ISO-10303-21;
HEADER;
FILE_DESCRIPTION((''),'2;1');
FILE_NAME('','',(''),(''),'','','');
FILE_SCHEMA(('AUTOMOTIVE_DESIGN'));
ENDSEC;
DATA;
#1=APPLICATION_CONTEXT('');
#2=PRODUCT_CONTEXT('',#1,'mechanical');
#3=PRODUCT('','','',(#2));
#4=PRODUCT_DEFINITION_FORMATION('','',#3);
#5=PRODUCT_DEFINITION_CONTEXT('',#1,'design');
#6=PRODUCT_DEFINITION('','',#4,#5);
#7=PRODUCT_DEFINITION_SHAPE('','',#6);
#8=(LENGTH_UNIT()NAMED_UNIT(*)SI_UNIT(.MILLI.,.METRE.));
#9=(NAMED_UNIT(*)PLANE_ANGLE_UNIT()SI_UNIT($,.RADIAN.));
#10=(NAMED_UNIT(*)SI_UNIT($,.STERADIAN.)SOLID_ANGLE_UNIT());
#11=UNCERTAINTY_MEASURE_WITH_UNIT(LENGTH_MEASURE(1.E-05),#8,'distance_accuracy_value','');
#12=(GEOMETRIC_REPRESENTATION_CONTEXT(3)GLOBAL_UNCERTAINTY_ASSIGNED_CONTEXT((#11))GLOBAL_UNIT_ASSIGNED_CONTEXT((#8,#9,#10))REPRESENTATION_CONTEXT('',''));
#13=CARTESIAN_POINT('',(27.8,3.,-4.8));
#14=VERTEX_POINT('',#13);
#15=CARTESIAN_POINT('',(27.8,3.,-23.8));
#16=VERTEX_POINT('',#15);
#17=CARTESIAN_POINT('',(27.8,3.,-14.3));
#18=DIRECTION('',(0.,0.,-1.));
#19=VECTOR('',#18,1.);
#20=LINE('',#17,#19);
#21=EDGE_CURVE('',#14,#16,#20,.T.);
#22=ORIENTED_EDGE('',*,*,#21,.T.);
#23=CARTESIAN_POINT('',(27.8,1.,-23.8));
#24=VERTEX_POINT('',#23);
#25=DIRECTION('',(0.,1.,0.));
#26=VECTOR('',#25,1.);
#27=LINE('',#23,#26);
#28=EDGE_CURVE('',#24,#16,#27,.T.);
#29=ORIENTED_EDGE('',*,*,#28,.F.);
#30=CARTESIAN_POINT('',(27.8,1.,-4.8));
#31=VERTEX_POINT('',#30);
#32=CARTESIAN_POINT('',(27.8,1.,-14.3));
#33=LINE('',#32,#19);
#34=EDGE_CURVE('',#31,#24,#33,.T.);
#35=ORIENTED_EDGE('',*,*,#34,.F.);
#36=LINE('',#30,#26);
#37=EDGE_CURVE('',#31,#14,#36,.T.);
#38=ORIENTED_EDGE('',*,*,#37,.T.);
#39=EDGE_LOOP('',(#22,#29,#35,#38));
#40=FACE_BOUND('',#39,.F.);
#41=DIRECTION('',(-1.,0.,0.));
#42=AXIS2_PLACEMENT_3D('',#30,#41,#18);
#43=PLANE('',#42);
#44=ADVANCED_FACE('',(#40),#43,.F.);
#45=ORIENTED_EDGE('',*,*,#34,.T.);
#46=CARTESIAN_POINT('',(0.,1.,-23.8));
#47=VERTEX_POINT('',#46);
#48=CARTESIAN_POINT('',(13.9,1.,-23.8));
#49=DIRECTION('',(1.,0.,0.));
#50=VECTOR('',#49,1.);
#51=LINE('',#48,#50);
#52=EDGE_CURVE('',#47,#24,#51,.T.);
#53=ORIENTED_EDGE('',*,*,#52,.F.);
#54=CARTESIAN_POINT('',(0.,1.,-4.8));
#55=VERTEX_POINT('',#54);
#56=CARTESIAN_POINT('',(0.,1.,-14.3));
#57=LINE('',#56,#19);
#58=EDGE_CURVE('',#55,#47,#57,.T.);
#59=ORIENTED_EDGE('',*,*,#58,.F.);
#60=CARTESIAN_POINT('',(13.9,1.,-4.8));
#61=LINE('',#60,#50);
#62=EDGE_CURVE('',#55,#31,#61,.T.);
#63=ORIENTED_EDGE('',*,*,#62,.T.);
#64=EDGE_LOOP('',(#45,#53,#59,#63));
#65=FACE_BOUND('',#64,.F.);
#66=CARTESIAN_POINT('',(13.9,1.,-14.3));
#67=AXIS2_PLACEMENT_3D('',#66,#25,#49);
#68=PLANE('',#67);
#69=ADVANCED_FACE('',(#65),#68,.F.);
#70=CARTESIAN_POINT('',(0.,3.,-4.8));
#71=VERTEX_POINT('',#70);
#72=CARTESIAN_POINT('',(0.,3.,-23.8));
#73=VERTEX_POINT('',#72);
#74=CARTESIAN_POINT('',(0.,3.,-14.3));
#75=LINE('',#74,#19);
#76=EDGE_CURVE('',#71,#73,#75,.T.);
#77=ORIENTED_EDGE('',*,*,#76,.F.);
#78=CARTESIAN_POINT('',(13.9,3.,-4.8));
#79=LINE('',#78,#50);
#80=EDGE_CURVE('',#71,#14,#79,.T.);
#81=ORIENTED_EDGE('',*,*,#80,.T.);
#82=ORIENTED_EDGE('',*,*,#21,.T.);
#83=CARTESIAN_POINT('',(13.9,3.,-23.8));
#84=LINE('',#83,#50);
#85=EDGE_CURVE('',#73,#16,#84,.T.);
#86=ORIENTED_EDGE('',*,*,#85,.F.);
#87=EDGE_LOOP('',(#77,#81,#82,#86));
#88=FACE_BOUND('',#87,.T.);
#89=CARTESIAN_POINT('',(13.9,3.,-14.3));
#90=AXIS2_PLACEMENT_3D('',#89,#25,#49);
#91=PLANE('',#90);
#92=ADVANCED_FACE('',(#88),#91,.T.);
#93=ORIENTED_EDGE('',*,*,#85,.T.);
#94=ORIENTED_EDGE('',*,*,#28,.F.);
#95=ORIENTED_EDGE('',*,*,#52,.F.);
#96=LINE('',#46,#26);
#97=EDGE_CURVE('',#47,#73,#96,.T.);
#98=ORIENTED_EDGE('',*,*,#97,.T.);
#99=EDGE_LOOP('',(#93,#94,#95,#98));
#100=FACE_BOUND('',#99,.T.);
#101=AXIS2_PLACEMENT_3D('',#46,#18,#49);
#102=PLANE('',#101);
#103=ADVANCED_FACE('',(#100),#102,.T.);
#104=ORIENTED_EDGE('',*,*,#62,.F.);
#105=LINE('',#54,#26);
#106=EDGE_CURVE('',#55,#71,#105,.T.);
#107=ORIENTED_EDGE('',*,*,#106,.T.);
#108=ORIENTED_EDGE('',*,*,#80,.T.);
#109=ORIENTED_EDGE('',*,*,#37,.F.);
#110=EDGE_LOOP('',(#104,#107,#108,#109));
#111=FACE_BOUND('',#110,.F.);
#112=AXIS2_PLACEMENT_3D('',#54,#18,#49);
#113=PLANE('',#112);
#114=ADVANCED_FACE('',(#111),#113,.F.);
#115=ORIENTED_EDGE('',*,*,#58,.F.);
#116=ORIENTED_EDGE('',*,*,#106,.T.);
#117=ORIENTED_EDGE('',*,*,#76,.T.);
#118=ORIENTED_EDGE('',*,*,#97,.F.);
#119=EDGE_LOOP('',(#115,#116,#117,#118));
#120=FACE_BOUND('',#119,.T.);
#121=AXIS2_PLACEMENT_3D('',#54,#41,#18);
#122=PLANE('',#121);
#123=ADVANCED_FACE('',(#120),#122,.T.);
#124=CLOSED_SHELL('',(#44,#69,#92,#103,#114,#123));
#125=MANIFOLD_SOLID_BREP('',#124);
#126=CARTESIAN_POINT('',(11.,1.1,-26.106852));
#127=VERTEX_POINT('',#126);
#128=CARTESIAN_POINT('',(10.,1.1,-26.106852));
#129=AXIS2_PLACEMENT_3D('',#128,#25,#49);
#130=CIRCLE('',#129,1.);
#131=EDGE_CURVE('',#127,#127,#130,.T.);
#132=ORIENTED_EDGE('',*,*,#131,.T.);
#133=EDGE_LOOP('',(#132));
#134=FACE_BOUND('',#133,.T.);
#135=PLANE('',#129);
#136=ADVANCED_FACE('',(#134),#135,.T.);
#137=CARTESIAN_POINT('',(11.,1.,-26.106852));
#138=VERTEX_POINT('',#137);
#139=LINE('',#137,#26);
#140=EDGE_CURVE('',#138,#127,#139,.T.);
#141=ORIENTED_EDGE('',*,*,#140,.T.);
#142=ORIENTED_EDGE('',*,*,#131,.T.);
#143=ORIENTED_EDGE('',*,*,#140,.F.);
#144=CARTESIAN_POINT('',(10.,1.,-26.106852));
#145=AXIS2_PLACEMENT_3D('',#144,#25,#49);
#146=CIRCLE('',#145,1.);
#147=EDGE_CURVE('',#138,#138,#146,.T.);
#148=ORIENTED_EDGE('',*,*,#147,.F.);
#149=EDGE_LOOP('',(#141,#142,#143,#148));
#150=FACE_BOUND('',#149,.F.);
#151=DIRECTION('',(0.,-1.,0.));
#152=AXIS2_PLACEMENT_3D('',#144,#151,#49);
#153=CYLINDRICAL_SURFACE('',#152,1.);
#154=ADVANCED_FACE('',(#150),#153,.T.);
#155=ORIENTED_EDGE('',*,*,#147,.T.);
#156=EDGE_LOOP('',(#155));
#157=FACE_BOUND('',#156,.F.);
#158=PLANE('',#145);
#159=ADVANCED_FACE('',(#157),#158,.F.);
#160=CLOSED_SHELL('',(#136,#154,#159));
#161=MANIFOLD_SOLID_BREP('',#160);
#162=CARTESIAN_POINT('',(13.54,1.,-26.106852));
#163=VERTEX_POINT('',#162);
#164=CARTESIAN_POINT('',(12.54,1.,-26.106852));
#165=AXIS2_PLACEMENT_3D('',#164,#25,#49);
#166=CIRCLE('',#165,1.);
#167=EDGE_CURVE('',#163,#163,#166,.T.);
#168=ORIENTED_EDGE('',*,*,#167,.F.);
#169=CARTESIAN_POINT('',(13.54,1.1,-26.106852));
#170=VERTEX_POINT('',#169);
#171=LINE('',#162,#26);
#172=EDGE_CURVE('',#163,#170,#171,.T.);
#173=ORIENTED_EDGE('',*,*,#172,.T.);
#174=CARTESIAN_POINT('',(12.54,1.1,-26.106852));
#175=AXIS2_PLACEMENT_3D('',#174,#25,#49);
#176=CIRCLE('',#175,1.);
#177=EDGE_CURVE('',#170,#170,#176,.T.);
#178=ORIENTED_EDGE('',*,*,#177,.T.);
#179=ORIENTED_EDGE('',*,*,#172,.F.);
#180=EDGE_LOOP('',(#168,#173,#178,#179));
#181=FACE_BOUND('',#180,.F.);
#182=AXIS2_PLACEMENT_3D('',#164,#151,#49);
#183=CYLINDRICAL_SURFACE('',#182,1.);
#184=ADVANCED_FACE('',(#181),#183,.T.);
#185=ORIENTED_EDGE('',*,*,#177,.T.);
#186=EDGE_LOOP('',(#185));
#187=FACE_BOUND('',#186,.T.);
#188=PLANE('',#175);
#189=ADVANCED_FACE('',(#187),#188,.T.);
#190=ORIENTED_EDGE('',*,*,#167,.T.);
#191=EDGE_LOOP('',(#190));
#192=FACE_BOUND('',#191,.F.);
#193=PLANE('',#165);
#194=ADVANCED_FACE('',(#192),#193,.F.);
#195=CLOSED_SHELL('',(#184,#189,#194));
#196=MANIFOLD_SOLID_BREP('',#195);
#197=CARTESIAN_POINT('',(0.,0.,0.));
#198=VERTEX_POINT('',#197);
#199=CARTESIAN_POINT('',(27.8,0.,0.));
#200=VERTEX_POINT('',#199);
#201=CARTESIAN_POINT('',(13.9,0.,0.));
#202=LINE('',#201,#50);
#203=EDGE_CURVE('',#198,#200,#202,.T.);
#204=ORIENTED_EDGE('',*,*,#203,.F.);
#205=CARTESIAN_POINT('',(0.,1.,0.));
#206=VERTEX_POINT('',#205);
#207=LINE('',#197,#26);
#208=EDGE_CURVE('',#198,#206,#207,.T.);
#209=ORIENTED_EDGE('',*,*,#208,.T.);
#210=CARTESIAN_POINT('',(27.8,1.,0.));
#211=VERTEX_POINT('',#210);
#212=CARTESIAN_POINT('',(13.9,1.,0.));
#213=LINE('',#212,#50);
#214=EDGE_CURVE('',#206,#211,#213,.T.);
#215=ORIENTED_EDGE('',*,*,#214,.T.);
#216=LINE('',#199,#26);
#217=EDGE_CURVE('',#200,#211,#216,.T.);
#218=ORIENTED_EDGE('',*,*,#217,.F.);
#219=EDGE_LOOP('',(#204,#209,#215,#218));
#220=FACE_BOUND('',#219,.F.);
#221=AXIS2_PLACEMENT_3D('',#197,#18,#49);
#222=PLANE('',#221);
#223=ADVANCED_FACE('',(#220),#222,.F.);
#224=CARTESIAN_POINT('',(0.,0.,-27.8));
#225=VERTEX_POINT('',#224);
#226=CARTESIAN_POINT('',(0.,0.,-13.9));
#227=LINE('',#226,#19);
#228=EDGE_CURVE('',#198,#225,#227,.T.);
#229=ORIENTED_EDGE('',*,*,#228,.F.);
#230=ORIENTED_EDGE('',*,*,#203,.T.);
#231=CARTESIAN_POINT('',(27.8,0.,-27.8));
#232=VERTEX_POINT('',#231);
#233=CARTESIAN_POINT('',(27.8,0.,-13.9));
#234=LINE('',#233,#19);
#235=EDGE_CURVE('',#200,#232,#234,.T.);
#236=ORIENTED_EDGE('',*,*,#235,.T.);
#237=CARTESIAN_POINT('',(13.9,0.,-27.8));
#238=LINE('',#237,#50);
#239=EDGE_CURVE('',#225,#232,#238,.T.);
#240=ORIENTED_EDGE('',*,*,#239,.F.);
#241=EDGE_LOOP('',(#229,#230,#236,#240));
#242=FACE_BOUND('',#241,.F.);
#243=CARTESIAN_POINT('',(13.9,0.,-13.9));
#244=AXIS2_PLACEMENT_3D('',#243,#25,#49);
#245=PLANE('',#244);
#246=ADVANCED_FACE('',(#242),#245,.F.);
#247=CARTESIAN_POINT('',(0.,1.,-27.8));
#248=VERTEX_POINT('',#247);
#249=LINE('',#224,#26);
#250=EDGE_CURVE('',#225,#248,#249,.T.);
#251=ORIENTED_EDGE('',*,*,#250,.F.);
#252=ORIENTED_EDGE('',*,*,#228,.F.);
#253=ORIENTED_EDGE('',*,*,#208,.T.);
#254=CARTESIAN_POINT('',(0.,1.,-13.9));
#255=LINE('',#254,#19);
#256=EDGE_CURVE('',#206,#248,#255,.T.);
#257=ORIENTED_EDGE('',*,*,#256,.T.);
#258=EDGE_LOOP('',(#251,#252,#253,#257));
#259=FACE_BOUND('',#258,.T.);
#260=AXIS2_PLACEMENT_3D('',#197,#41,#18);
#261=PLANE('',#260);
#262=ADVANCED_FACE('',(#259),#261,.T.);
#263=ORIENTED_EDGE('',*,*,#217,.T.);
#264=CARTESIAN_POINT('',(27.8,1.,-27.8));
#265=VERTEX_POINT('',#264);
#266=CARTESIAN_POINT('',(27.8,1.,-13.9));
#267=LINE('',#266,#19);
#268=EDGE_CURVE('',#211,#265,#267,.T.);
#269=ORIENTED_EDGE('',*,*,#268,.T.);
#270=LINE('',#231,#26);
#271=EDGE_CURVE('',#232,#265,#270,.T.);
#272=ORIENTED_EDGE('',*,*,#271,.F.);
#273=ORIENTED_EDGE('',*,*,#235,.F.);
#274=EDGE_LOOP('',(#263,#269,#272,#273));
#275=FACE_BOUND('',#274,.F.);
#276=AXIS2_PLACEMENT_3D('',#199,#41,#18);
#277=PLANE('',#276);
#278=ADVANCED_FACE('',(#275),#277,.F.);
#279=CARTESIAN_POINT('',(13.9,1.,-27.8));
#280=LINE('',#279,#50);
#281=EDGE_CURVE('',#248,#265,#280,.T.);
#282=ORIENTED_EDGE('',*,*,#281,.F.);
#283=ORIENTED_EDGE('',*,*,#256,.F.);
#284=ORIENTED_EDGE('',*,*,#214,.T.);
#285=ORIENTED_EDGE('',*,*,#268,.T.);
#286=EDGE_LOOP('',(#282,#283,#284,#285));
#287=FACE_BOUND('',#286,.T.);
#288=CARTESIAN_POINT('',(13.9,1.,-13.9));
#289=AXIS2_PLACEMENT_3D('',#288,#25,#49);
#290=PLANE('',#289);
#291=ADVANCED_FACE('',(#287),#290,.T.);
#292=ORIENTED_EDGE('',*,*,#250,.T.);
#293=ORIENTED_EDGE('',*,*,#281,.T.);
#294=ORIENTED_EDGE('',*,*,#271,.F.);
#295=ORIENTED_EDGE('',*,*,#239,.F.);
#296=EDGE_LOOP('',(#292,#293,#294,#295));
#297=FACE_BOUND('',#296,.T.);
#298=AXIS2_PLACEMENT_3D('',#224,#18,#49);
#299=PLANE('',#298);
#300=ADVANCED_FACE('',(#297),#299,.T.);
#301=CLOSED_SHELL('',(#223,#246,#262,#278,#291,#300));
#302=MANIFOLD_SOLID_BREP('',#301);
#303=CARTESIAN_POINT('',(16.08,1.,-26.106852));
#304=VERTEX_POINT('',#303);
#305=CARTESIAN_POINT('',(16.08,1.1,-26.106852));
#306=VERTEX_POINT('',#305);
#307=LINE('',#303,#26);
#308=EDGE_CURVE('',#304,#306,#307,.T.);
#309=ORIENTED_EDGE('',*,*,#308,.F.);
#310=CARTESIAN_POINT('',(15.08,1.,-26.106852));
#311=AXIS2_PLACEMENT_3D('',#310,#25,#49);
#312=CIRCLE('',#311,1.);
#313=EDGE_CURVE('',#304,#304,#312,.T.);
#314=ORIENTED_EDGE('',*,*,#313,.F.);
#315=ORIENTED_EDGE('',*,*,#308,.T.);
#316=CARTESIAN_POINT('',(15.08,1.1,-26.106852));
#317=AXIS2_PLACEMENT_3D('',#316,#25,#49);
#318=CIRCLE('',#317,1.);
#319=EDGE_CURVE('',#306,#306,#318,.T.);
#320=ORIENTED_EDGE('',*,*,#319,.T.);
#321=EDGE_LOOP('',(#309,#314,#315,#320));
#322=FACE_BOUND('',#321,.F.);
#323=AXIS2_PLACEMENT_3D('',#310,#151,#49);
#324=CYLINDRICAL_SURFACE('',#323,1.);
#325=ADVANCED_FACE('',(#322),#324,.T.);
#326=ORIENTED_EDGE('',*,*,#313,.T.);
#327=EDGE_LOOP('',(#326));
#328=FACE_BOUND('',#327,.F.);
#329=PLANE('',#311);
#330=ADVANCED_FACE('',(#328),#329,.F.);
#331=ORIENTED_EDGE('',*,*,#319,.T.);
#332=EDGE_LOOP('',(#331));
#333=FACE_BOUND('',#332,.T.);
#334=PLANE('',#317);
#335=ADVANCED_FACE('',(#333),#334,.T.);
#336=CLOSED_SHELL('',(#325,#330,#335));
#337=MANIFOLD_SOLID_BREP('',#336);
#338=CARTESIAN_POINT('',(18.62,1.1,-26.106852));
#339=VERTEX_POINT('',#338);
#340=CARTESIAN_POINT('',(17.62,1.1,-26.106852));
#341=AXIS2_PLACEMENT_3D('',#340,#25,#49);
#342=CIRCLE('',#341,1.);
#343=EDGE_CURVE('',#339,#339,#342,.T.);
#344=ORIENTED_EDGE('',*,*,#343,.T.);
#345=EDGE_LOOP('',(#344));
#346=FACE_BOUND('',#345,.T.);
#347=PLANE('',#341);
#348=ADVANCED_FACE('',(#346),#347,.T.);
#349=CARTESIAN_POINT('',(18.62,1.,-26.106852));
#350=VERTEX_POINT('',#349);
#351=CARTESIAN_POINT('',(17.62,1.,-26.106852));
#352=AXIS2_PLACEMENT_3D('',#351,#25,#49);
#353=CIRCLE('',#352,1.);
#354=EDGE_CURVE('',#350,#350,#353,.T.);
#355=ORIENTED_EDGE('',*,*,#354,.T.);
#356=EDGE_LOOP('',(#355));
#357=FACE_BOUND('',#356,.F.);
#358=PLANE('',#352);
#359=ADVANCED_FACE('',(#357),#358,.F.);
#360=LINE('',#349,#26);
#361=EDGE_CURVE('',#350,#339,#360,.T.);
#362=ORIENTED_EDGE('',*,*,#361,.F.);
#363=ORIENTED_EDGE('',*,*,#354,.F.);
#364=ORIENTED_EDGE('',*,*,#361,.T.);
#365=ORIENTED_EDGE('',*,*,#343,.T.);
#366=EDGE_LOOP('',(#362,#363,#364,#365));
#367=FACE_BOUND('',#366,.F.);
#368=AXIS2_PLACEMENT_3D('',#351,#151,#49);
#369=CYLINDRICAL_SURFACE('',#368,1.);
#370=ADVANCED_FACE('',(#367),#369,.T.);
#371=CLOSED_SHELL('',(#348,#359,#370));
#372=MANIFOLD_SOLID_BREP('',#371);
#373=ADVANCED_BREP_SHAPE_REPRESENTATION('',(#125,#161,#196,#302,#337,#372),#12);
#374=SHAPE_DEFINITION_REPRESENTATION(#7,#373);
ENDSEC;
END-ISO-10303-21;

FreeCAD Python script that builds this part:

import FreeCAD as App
import Part
import Sketcher
from FreeCAD import Vector

doc = App.newDocument("Part")
body = doc.addObject("PartDesign::Body", "Body")

# Sketch on XZ plane
sketch1 = body.newObject("Sketcher::SketchObject", "Sketch")
sketch1.AttachmentSupport = (doc.getObject("XZ_Plane"), [""])
sketch1.MapMode = "FlatFace"
sketch1.addGeometry([
    Part.LineSegment(Vector(0, -28, 0), Vector(0, 0, 0)),
    Part.LineSegment(Vector(0, 0, 0), Vector(28, 0, 0)),
    Part.LineSegment(Vector(28, 0, 0), Vector(28, -28, 0)),
    Part.LineSegment(Vector(28, -28, 0), Vector(0, -28, 0)),
], False)
sketch1.addConstraint([
    Sketcher.Constraint("Coincident", 0, 2, 1, 1),
    Sketcher.Constraint("Coincident", 1, 2, 2, 1),
    Sketcher.Constraint("Coincident", 2, 2, 3, 1),
    Sketcher.Constraint("Coincident", 3, 2, 0, 1),
    Sketcher.Constraint("Vertical", 0),
    Sketcher.Constraint("Horizontal", 1),
    Sketcher.Constraint("Vertical", 2),
    Sketcher.Constraint("Horizontal", 3),
    Sketcher.Constraint("Coincident", 0, 2, -1, 1),
    Sketcher.Constraint("Equal", 3, 0),
    Sketcher.Constraint("DistanceX", 1, 1, 1, 2, 27.8),
])
pad1 = body.newObject("PartDesign::Pad", "Pad")
pad1.Profile = sketch1
pad1.Length = 1
pad1.Reversed = True
body2 = doc.addObject("PartDesign::Body", "Body001")

# Sketch on XZ plane
sketch2 = body2.newObject("Sketcher::SketchObject", "Sketch001")
sketch2.AttachmentSupport = (doc.getObject("XZ_Plane001"), [""])
sketch2.MapMode = "FlatFace"
sketch2.AttachmentOffset = App.Placement(Vector(0, 0, -1), App.Rotation())
sketch2.addGeometry([
    Part.LineSegment(Vector(0, -24, 0), Vector(0, -5, 0)),
    Part.LineSegment(Vector(0, -5, 0), Vector(28, -5, 0)),
    Part.LineSegment(Vector(28, -5, 0), Vector(28, -24, 0)),
    Part.LineSegment(Vector(28, -24, 0), Vector(0, -24, 0)),
], False)
sketch2.addConstraint([
    Sketcher.Constraint("Coincident", 0, 2, 1, 1),
    Sketcher.Constraint("Coincident", 1, 2, 2, 1),
    Sketcher.Constraint("Coincident", 2, 2, 3, 1),
    Sketcher.Constraint("Coincident", 3, 2, 0, 1),
    Sketcher.Constraint("Vertical", 0),
    Sketcher.Constraint("Horizontal", 1),
    Sketcher.Constraint("Vertical", 2),
    Sketcher.Constraint("Horizontal", 3),
    Sketcher.Constraint("PointOnObject", 0, 2, -2),
    Sketcher.Constraint("DistanceY", 0, 1, 0, 2, 19.0),
    Sketcher.Constraint("DistanceX", 1, 1, 1, 2, 27.8),
    Sketcher.Constraint("DistanceY", 0, 2, -1, 1, 4.8),
])
pad2 = body2.newObject("PartDesign::Pad", "Pad001")
pad2.Profile = sketch2
pad2.Length = 2
pad2.Reversed = True
body3 = doc.addObject("PartDesign::Body", "Body002")

# Sketch on XZ plane
sketch3 = body3.newObject("Sketcher::SketchObject", "Sketch002")
sketch3.AttachmentSupport = (doc.getObject("XZ_Plane002"), [""])
sketch3.MapMode = "FlatFace"
sketch3.AttachmentOffset = App.Placement(Vector(0, 0, -1), App.Rotation())
sketch3.addGeometry(Part.Circle(Vector(10, -26.1, 0), Vector(0, 0, 1), 1), False)
sketch3.addConstraint([
    Sketcher.Constraint("Diameter", 0, 2.0),
    Sketcher.Constraint("DistanceX", -1, 1, 0, 3, 10.0),
    Sketcher.Constraint("DistanceY", 0, 3, -1, 1, 26.106852),
])
pad3 = body3.newObject("PartDesign::Pad", "Pad002")
pad3.Profile = sketch3
pad3.Length = 0.1
pad3.Reversed = True
body4 = doc.addObject("PartDesign::Body", "Body003")

# Sketch on XZ plane
sketch4 = body4.newObject("Sketcher::SketchObject", "Sketch003")
sketch4.AttachmentSupport = (doc.getObject("XZ_Plane003"), [""])
sketch4.MapMode = "FlatFace"
sketch4.AttachmentOffset = App.Placement(Vector(0, 0, -1), App.Rotation())
sketch4.addGeometry(Part.Circle(Vector(12.5, -26.1, 0), Vector(0, 0, 1), 1), False)
sketch4.addConstraint([
    Sketcher.Constraint("Diameter", 0, 2.0),
    Sketcher.Constraint("DistanceX", -1, 1, 0, 3, 12.54),
    Sketcher.Constraint("DistanceY", 0, 3, -1, 1, 26.106852),
])
pad4 = body4.newObject("PartDesign::Pad", "Pad003")
pad4.Profile = sketch4
pad4.Length = 0.1
pad4.Reversed = True
body5 = doc.addObject("PartDesign::Body", "Body004")

# Sketch on XZ plane
sketch5 = body5.newObject("Sketcher::SketchObject", "Sketch004")
sketch5.AttachmentSupport = (doc.getObject("XZ_Plane004"), [""])
sketch5.MapMode = "FlatFace"
sketch5.AttachmentOffset = App.Placement(Vector(0, 0, -1), App.Rotation())
sketch5.addGeometry(Part.Circle(Vector(15.1, -26.1, 0), Vector(0, 0, 1), 1), False)
sketch5.addConstraint([
    Sketcher.Constraint("Diameter", 0, 2.0),
    Sketcher.Constraint("DistanceX", -1, 1, 0, 3, 15.08),
    Sketcher.Constraint("DistanceY", 0, 3, -1, 1, 26.106852),
])
pad5 = body5.newObject("PartDesign::Pad", "Pad004")
pad5.Profile = sketch5
pad5.Length = 0.1
pad5.Reversed = True
body6 = doc.addObject("PartDesign::Body", "Body005")

# Sketch on XZ plane
sketch6 = body6.newObject("Sketcher::SketchObject", "Sketch005")
sketch6.AttachmentSupport = (doc.getObject("XZ_Plane005"), [""])
sketch6.MapMode = "FlatFace"
sketch6.AttachmentOffset = App.Placement(Vector(0, 0, -1), App.Rotation())
sketch6.addGeometry(Part.Circle(Vector(17.6, -26.1, 0), Vector(0, 0, 1), 1), False)
sketch6.addConstraint([
    Sketcher.Constraint("Diameter", 0, 2.0),
    Sketcher.Constraint("DistanceX", -1, 1, 0, 3, 17.62),
    Sketcher.Constraint("DistanceY", 0, 3, -1, 1, 26.106852),
])
pad6 = body6.newObject("PartDesign::Pad", "Pad005")
pad6.Profile = sketch6
pad6.Length = 0.1
pad6.Reversed = True

doc.recompute()
